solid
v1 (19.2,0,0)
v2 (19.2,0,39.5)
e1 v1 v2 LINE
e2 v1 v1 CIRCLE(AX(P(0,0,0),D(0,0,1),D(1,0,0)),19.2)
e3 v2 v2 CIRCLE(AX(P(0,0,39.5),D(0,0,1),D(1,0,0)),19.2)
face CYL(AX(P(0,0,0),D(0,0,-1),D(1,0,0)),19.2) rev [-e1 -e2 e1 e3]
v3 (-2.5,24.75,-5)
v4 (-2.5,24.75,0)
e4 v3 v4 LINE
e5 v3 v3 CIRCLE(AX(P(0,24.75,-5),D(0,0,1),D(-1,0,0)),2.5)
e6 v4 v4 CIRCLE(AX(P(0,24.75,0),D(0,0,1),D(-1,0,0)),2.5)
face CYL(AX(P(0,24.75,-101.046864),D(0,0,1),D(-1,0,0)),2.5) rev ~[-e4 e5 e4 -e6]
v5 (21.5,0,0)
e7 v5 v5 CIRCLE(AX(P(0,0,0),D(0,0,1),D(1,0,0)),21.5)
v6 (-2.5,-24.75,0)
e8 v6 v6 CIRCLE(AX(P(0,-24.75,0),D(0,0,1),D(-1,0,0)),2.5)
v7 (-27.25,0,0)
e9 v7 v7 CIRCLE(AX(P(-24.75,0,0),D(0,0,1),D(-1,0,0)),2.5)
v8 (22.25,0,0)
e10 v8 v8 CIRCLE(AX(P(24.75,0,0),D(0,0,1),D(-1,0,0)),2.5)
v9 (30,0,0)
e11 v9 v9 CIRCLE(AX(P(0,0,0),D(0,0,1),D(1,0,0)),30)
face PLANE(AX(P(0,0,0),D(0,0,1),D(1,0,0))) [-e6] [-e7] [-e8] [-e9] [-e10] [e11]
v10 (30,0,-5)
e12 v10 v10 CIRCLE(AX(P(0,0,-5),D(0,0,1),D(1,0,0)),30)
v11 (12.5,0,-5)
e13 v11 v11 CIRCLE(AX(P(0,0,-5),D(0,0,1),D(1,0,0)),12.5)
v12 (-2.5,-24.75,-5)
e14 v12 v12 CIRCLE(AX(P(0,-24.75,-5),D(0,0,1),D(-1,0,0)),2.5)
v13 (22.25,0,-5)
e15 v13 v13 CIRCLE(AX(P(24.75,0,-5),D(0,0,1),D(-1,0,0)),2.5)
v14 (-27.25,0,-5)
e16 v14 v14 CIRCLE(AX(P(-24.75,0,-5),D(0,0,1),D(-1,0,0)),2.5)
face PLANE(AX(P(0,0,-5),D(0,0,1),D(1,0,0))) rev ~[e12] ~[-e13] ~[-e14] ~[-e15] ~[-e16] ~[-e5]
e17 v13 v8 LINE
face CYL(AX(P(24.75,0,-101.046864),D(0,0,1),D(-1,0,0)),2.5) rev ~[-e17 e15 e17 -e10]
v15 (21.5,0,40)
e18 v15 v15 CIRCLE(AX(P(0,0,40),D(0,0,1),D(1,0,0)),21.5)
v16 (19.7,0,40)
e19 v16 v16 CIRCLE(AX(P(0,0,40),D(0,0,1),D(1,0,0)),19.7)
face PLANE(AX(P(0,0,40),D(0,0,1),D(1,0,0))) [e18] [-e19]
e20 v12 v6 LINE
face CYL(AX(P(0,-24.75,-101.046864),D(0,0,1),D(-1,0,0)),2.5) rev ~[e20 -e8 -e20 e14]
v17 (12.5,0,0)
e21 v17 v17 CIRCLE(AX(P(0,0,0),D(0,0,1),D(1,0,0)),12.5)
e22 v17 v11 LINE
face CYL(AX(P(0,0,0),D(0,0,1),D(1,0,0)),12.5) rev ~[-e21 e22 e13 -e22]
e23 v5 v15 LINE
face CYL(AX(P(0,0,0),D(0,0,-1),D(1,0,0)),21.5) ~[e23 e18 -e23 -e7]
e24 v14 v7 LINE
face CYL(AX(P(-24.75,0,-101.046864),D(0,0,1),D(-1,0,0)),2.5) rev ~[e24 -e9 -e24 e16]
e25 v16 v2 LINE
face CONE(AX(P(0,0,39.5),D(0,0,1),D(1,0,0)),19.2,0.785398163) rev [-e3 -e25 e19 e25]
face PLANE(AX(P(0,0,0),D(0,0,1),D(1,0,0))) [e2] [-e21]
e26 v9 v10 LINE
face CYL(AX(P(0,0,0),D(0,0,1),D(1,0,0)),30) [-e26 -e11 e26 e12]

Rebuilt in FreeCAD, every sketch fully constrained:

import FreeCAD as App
import Part
import Sketcher

V = App.Vector
Q = App.Units.Quantity


def edges_at(feature, points):
    """Names of the edges that pass closest to the given points."""
    edges = feature.Shape.Edges
    near = lambda p: min(range(len(edges)), key=lambda i: edges[i].distToShape(Part.Vertex(*p))[0])
    return sorted({f"Edge{near(p) + 1}" for p in points})

doc = App.newDocument("Part")
body = doc.addObject("PartDesign::Body", "Body")

# Sketch on XY plane
sketch1 = body.newObject("Sketcher::SketchObject", "Sketch")
sketch1.AttachmentSupport = (doc.getObject("XY_Plane"), [""])
sketch1.MapMode = "FlatFace"
sketch1.addGeometry(Part.Circle(V(0, 0, 0), V(0, 0, 1), 21.5), False)
sketch1.addGeometry(Part.Circle(V(0, 0, 0), V(0, 0, 1), 19.2), False)
sketch1.addConstraint(Sketcher.Constraint("Coincident", 0, 3, -1, 1))
sketch1.addConstraint(Sketcher.Constraint("Coincident", 1, 3, -1, 1))
sketch1.addConstraint(Sketcher.Constraint("Diameter", 0, Q("43 mm")))
sketch1.addConstraint(Sketcher.Constraint("Diameter", 1, Q("38.4 mm")))
pad1 = body.newObject("PartDesign::Pad", "Pad")
pad1.Profile = sketch1
pad1.Length = 40

# Sketch on XY plane
sketch2 = body.newObject("Sketcher::SketchObject", "Sketch001")
sketch2.AttachmentSupport = (doc.getObject("XY_Plane"), [""])
sketch2.MapMode = "FlatFace"
sketch2.addGeometry(Part.Circle(V(0, 0, 0), V(0, 0, 1), 30), False)
sketch2.addGeometry(Part.Circle(V(0, 0, 0), V(0, 0, 1), 12.5), False)
sketch2.addConstraint(Sketcher.Constraint("Coincident", 0, 3, -1, 1))
sketch2.addConstraint(Sketcher.Constraint("Coincident", 1, 3, -1, 1))
sketch2.addConstraint(Sketcher.Constraint("Diameter", 0, Q("60 mm")))
sketch2.addConstraint(Sketcher.Constraint("Diameter", 1, Q("25 mm")))
pad2 = body.newObject("PartDesign::Pad", "Pad001")
pad2.Profile = sketch2
pad2.Length = 5
pad2.Reversed = True

# Sketch on XY plane
sketch3 = body.newObject("Sketcher::SketchObject", "Sketch002")
sketch3.AttachmentSupport = (doc.getObject("XY_Plane"), [""])
sketch3.MapMode = "FlatFace"
sketch3.AttachmentOffset = App.Placement(V(0, 0, -5), App.Rotation())
sketch3.addGeometry(Part.Circle(V(-24.75, 0, 0), V(0, 0, 1), 2.5), False)
sketch3.addGeometry(Part.Circle(V(0, -24.75, 0), V(0, 0, 1), 2.5), False)
sketch3.addGeometry(Part.Circle(V(24.75, 0, 0), V(0, 0, 1), 2.5), False)
sketch3.addGeometry(Part.Circle(V(0, 24.75, 0), V(0, 0, 1), 2.5), False)
sketch3.addConstraint(Sketcher.Constraint("Equal", 0, 1))
sketch3.addConstraint(Sketcher.Constraint("Equal", 1, 2))
sketch3.addConstraint(Sketcher.Constraint("Equal", 2, 3))
sketch3.addConstraint(Sketcher.Constraint("Symmetric", 0, 3, 2, 3, -1, 1))
sketch3.addConstraint(Sketcher.Constraint("Symmetric", 1, 3, 3, 3, -1, 1))
sketch3.addConstraint(Sketcher.Constraint("PointOnObject", 0, 3, -1))
sketch3.addConstraint(Sketcher.Constraint("PointOnObject", 1, 3, -2))
sketch3.addConstraint(Sketcher.Constraint("Diameter", 0, Q("5 mm")))
sketch3.addConstraint(Sketcher.Constraint("DistanceX", 0, 3, 2, 3, Q("49.5 mm")))
sketch3.addConstraint(Sketcher.Constraint("DistanceY", 1, 3, 3, 3, Q("49.5 mm")))
doc.recompute()
hole = body.newObject("PartDesign::Hole", "Hole")
hole.Profile = sketch3
hole.ThreadType = "None"
hole.Diameter = 5
hole.DepthType = "ThroughAll"
hole.Reversed = True
doc.recompute()

chamfer = body.newObject("PartDesign::Chamfer", "Chamfer")
chamfer.Base = (hole, edges_at(hole, [(-19.2, 0, 40)]))
chamfer.Size = 0.5

doc.recompute()
